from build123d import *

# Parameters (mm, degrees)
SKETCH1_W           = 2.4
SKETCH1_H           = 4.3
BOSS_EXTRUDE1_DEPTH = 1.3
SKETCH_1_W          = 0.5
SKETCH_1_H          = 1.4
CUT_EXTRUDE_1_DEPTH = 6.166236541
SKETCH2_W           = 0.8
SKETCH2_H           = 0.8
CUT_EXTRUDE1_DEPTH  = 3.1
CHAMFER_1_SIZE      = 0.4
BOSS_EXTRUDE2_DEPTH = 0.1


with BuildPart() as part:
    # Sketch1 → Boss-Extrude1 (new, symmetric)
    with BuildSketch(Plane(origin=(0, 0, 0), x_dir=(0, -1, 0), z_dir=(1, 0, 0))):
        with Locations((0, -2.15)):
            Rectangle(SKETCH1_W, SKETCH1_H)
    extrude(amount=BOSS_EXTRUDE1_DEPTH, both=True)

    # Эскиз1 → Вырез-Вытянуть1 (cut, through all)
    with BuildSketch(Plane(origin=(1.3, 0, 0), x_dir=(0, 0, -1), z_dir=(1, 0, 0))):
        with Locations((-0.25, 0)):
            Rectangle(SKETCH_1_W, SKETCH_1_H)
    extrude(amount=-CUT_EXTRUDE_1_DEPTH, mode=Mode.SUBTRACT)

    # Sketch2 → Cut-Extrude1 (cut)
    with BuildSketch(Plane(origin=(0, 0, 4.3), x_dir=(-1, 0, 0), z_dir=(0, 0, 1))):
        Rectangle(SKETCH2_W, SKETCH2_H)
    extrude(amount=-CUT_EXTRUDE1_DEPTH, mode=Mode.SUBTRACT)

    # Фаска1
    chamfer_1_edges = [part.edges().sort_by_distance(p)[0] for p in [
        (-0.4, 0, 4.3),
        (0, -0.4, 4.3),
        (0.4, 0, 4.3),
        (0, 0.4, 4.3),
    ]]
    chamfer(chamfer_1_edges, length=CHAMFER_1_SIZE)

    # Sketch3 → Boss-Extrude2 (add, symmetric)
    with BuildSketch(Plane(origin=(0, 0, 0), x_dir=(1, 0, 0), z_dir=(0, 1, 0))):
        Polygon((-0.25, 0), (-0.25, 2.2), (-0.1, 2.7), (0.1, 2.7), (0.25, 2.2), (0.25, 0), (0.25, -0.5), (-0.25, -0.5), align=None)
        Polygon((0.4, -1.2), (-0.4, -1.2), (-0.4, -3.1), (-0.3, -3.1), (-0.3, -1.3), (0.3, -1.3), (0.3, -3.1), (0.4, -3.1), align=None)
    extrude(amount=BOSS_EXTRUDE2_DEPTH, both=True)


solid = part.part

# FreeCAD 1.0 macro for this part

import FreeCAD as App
import Part
import Sketcher


def edges_at(feature, points):
    """Names of the edges that pass closest to the given points."""
    edges = feature.Shape.Edges
    near = lambda p: min(range(len(edges)), key=lambda i: edges[i].distToShape(Part.Vertex(*p))[0])
    return sorted({f"Edge{near(p) + 1}" for p in points})

doc = App.newDocument("Part")
body = doc.addObject("PartDesign::Body", "Body")

sketch1 = doc.addObject("Sketcher::SketchObject", "Sketch")
body.addObject(sketch1)
sketch1.AttachmentSupport = (doc.YZ_Plane, [""])
sketch1.MapMode = "FlatFace"
sketch1.addGeometry([
    Part.LineSegment(App.Vector(1.2, 0, 0), App.Vector(1.2, 4.3, 0)),
    Part.LineSegment(App.Vector(1.2, 4.3, 0), App.Vector(-1.2, 4.3, 0)),
    Part.LineSegment(App.Vector(-1.2, 4.3, 0), App.Vector(-1.2, 0, 0)),
    Part.LineSegment(App.Vector(-1.2, 0, 0), App.Vector(1.2, 0, 0)),
], False)
sketch1.addConstraint([
    Sketcher.Constraint("Coincident", 0, 2, 1, 1),
    Sketcher.Constraint("Coincident", 1, 2, 2, 1),
    Sketcher.Constraint("Coincident", 2, 2, 3, 1),
    Sketcher.Constraint("Coincident", 3, 2, 0, 1),
    Sketcher.Constraint("Vertical", 0),
    Sketcher.Constraint("Horizontal", 1),
    Sketcher.Constraint("Vertical", 2),
    Sketcher.Constraint("Horizontal", 3),
    Sketcher.Constraint("Symmetric", 2, 2, 3, 2, -1, 1),
    Sketcher.Constraint("DistanceX", 1, 2, 1, 1, 2.4),
    Sketcher.Constraint("DistanceY", 0, 1, 0, 2, 4.3),
])
pad1 = doc.addObject("PartDesign::Pad", "Pad")
body.addObject(pad1)
pad1.Profile = sketch1
pad1.Length = 2.6
pad1.Midplane = True

sketch2 = doc.addObject("Sketcher::SketchObject", "Sketch001")
body.addObject(sketch2)
sketch2.AttachmentSupport = (doc.YZ_Plane, [""])
sketch2.MapMode = "FlatFace"
sketch2.AttachmentOffset = App.Placement(App.Vector(0, 0, 1.3), App.Rotation())
sketch2.addGeometry([
    Part.LineSegment(App.Vector(0.7, 0.5, 0), App.Vector(-0.7, 0.5, 0)),
    Part.LineSegment(App.Vector(-0.7, 0.5, 0), App.Vector(-0.7, 0, 0)),
    Part.LineSegment(App.Vector(-0.7, 0, 0), App.Vector(0.7, 0, 0)),
    Part.LineSegment(App.Vector(0.7, 0, 0), App.Vector(0.7, 0.5, 0)),
], False)
sketch2.addConstraint([
    Sketcher.Constraint("Coincident", 0, 2, 1, 1),
    Sketcher.Constraint("Coincident", 1, 2, 2, 1),
    Sketcher.Constraint("Coincident", 2, 2, 3, 1),
    Sketcher.Constraint("Coincident", 3, 2, 0, 1),
    Sketcher.Constraint("Horizontal", 0),
    Sketcher.Constraint("Vertical", 1),
    Sketcher.Constraint("Horizontal", 2),
    Sketcher.Constraint("Vertical", 3),
    Sketcher.Constraint("Symmetric", 1, 2, 2, 2, -1, 1),
    Sketcher.Constraint("DistanceX", 0, 2, 0, 1, 1.4),
    Sketcher.Constraint("DistanceY", 1, 2, 1, 1, 0.5),
])
pocket1 = doc.addObject("PartDesign::Pocket", "Pocket")
body.addObject(pocket1)
pocket1.Profile = sketch2
pocket1.Type = "ThroughAll"

sketch3 = doc.addObject("Sketcher::SketchObject", "Sketch002")
body.addObject(sketch3)
sketch3.AttachmentSupport = (doc.XY_Plane, [""])
sketch3.MapMode = "FlatFace"
sketch3.AttachmentOffset = App.Placement(App.Vector(0, 0, 4.3), App.Rotation())
sketch3.addGeometry([
    Part.LineSegment(App.Vector(0.4, -0.4, 0), App.Vector(0.4, 0.4, 0)),
    Part.LineSegment(App.Vector(0.4, 0.4, 0), App.Vector(-0.4, 0.4, 0)),
    Part.LineSegment(App.Vector(-0.4, 0.4, 0), App.Vector(-0.4, -0.4, 0)),
    Part.LineSegment(App.Vector(-0.4, -0.4, 0), App.Vector(0.4, -0.4, 0)),
], False)
sketch3.addConstraint([
    Sketcher.Constraint("Coincident", 0, 2, 1, 1),
    Sketcher.Constraint("Coincident", 1, 2, 2, 1),
    Sketcher.Constraint("Coincident", 2, 2, 3, 1),
    Sketcher.Constraint("Coincident", 3, 2, 0, 1),
    Sketcher.Constraint("Vertical", 0),
    Sketcher.Constraint("Horizontal", 1),
    Sketcher.Constraint("Vertical", 2),
    Sketcher.Constraint("Horizontal", 3),
    Sketcher.Constraint("Symmetric", 0, 2, 2, 2, -1, 1),
    Sketcher.Constraint("Equal", 3, 0),
    Sketcher.Constraint("DistanceX", 1, 2, 1, 1, 0.8),
])
pocket2 = doc.addObject("PartDesign::Pocket", "Pocket001")
body.addObject(pocket2)
pocket2.Profile = sketch3
pocket2.Length = 3.1
doc.recompute()

chamfer = doc.addObject("PartDesign::Chamfer", "Chamfer")
body.addObject(chamfer)
chamfer.Base = (pocket2, edges_at(pocket2, [
    (-0.4, 0, 4.3),
    (0, -0.4, 4.3),
    (0.4, 0, 4.3),
    (0, 0.4, 4.3),
]))
chamfer.Size = 0.4

sketch4 = doc.addObject("Sketcher::SketchObject", "Sketch003")
body.addObject(sketch4)
sketch4.AttachmentSupport = (doc.XZ_Plane, [""])
sketch4.MapMode = "FlatFace"
sketch4.addGeometry([
    Part.LineSegment(App.Vector(-0.25, -2.2, 0), App.Vector(-0.25, 0.5, 0)),
    Part.LineSegment(App.Vector(-0.25, 0.5, 0), App.Vector(0.25, 0.5, 0)),
    Part.LineSegment(App.Vector(0.25, 0.5, 0), App.Vector(0.25, -2.2, 0)),
    Part.LineSegment(App.Vector(0.25, -2.2, 0), App.Vector(0.1, -2.7, 0)),
    Part.LineSegment(App.Vector(0.1, -2.7, 0), App.Vector(-0.1, -2.7, 0)),
    Part.LineSegment(App.Vector(-0.1, -2.7, 0), App.Vector(-0.25, -2.2, 0)),
    Part.LineSegment(App.Vector(0.4, 1.2, 0), App.Vector(-0.4, 1.2, 0)),
    Part.LineSegment(App.Vector(-0.4, 1.2, 0), App.Vector(-0.4, 3.1, 0)),
    Part.LineSegment(App.Vector(-0.4, 3.1, 0), App.Vector(-0.3, 3.1, 0)),
    Part.LineSegment(App.Vector(-0.3, 3.1, 0), App.Vector(-0.3, 1.3, 0)),
    Part.LineSegment(App.Vector(-0.3, 1.3, 0), App.Vector(0.3, 1.3, 0)),
    Part.LineSegment(App.Vector(0.3, 1.3, 0), App.Vector(0.3, 3.1, 0)),
    Part.LineSegment(App.Vector(0.3, 3.1, 0), App.Vector(0.4, 3.1, 0)),
    Part.LineSegment(App.Vector(0.4, 3.1, 0), App.Vector(0.4, 1.2, 0)),
], False)
sketch4.addConstraint([
    Sketcher.Constraint("Coincident", 0, 2, 1, 1),
    Sketcher.Constraint("Coincident", 1, 2, 2, 1),
    Sketcher.Constraint("Coincident", 2, 2, 3, 1),
    Sketcher.Constraint("Coincident", 3, 2, 4, 1),
    Sketcher.Constraint("Coincident", 4, 2, 5, 1),
    Sketcher.Constraint("Coincident", 5, 2, 0, 1),
    Sketcher.Constraint("Coincident", 6, 2, 7, 1),
    Sketcher.Constraint("Coincident", 7, 2, 8, 1),
    Sketcher.Constraint("Coincident", 8, 2, 9, 1),
    Sketcher.Constraint("Coincident", 9, 2, 10, 1),
    Sketcher.Constraint("Coincident", 10, 2, 11, 1),
    Sketcher.Constraint("Coincident", 11, 2, 12, 1),
    Sketcher.Constraint("Coincident", 12, 2, 13, 1),
    Sketcher.Constraint("Coincident", 13, 2, 6, 1),
    Sketcher.Constraint("Vertical", 0),
    Sketcher.Constraint("Horizontal", 1),
    Sketcher.Constraint("Vertical", 2),
    Sketcher.Constraint("Horizontal", 4),
    Sketcher.Constraint("Horizontal", 6),
    Sketcher.Constraint("Vertical", 7),
    Sketcher.Constraint("Horizontal", 8),
    Sketcher.Constraint("Vertical", 9),
    Sketcher.Constraint("Horizontal", 10),
    Sketcher.Constraint("Vertical", 11),
    Sketcher.Constraint("Horizontal", 12),
    Sketcher.Constraint("Vertical", 13),
    Sketcher.Constraint("Symmetric", 2, 2, 5, 2, -2),
    Sketcher.Constraint("Symmetric", 8, 2, 11, 2, -2),
    Sketcher.Constraint("Equal", 8, 12),
    Sketcher.Constraint("Equal", 3, 5),
    Sketcher.Constraint("DistanceX", 1, 1, 1, 2, 0.5),
    Sketcher.Constraint("DistanceX", 4, 2, 4, 1, 0.2),
    Sketcher.Constraint("DistanceX", 6, 2, 6, 1, 0.8),
    Sketcher.Constraint("DistanceX", 8, 1, 8, 2, 0.1),
    Sketcher.Constraint("DistanceY", 0, 1, 0, 2, 2.7),
    Sketcher.Constraint("DistanceY", 7, 1, 7, 2, 1.9),
    Sketcher.Constraint("DistanceY", 9, 2, 9, 1, 1.8),
    Sketcher.Constraint("DistanceY", -1, 1, 0, 2, 0.5),
    Sketcher.Constraint("DistanceY", 3, 2, -1, 1, 2.7),
    Sketcher.Constraint("DistanceY", -1, 1, 6, 2, 1.2),
])
pad2 = doc.addObject("PartDesign::Pad", "Pad001")
body.addObject(pad2)
pad2.Profile = sketch4
pad2.Length = 0.2
pad2.Midplane = True

doc.recompute()
